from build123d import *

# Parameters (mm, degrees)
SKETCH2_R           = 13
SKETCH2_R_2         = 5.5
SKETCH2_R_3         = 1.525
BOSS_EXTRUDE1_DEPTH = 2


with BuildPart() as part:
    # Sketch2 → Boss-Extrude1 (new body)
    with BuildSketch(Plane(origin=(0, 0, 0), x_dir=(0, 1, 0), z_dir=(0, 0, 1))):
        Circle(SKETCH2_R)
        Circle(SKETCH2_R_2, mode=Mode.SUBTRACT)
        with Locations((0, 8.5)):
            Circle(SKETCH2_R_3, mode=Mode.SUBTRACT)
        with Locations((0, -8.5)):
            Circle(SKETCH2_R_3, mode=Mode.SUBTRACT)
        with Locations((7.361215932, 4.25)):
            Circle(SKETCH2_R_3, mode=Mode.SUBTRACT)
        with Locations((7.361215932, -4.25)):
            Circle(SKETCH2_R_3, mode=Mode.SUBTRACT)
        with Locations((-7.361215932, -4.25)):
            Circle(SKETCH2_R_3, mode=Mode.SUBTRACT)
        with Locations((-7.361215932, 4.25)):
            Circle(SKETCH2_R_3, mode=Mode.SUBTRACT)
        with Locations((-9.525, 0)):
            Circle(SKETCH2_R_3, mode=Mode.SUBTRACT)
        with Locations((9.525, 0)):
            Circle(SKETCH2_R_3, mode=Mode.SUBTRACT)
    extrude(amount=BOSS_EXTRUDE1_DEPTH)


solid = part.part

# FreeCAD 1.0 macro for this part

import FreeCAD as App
import Part
import Sketcher

V = App.Vector
Q = App.Units.Quantity

doc = App.newDocument("Part")
body = doc.addObject("PartDesign::Body", "Body")

sketch1 = body.newObject("Sketcher::SketchObject", "Sketch")
sketch1.AttachmentSupport = (doc.getObject("XY_Plane"), [""])
sketch1.MapMode = "FlatFace"
sketch1.addGeometry([
    Part.Circle(V(0, 0, 0), V(0, 0, 1), 13),
    Part.Circle(V(4.25, -7.361216, 0), V(0, 0, 1), 1.525),
    Part.Circle(V(0, -9.525, 0), V(0, 0, 1), 1.525),
    Part.Circle(V(8.5, 0, 0), V(0, 0, 1), 1.525),
    Part.Circle(V(4.25, 7.361216, 0), V(0, 0, 1), 1.525),
    Part.Circle(V(0, 9.525, 0), V(0, 0, 1), 1.525),
    Part.Circle(V(-4.25, -7.361216, 0), V(0, 0, 1), 1.525),
    Part.Circle(V(0, 0, 0), V(0, 0, 1), 5.5),
    Part.Circle(V(-4.25, 7.361216, 0), V(0, 0, 1), 1.525),
    Part.Circle(V(-8.5, 0, 0), V(0, 0, 1), 1.525),
], False)
sketch1.addConstraint([
    Sketcher.Constraint("Coincident", 0, 3, -1, 1),
    Sketcher.Constraint("Coincident", 7, 3, -1, 1),
    Sketcher.Constraint("Equal", 1, 2),
    Sketcher.Constraint("Equal", 2, 3),
    Sketcher.Constraint("Equal", 3, 4),
    Sketcher.Constraint("Equal", 4, 5),
    Sketcher.Constraint("Equal", 5, 6),
    Sketcher.Constraint("Equal", 6, 8),
    Sketcher.Constraint("Equal", 8, 9),
    Sketcher.Constraint("Symmetric", 2, 3, 5, 3, -1, 1),
    Sketcher.Constraint("Symmetric", 4, 3, 6, 3, -1, 1),
    Sketcher.Constraint("Symmetric", 1, 3, 8, 3, -1, 1),
    Sketcher.Constraint("Symmetric", 3, 3, 9, 3, -1, 1),
    Sketcher.Constraint("Symmetric", 1, 3, 6, 3, -2),
    Sketcher.Constraint("PointOnObject", 2, 3, -2),
    Sketcher.Constraint("PointOnObject", 3, 3, -1),
    Sketcher.Constraint("Diameter", 0, Q("26 mm")),
    Sketcher.Constraint("Diameter", 7, Q("11 mm")),
    Sketcher.Constraint("Diameter", 1, Q("3.05 mm")),
    Sketcher.Constraint("DistanceX", -1, 1, 3, 3, Q("8.5 mm")),
    Sketcher.Constraint("DistanceX", 6, 3, 1, 3, Q("8.5 mm")),
    Sketcher.Constraint("DistanceY", 2, 3, 5, 3, Q("19.05 mm")),
    Sketcher.Constraint("DistanceY", 1, 3, 4, 3, Q("14.722432 mm")),
])
pad1 = body.newObject("PartDesign::Pad", "Pad")
pad1.Profile = sketch1
pad1.Length = 2

doc.recompute()
